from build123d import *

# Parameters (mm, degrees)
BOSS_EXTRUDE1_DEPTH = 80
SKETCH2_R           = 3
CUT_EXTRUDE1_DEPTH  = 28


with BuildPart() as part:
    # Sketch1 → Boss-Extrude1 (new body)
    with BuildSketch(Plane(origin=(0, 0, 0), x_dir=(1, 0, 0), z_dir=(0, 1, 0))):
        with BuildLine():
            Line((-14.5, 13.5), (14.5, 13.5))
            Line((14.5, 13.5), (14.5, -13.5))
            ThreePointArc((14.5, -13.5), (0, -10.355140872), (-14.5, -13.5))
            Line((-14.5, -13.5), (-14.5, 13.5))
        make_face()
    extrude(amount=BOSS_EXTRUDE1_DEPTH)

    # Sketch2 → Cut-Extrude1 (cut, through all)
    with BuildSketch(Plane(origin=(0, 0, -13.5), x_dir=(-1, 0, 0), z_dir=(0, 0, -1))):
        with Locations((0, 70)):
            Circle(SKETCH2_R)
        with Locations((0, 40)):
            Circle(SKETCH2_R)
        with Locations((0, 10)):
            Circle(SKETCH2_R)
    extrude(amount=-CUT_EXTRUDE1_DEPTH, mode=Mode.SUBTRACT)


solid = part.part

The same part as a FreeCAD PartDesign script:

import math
import FreeCAD as App
import Part
import Sketcher
Q = App.Units.Quantity

doc = App.newDocument("Part")
params = doc.addObject("Spreadsheet::Sheet", "Params")
for row, (alias, value) in enumerate([
    ("sketch1_radius", "35 mm"),
    ("sketch1_width", "29 mm"),
    ("sketch1_height", "27 mm"),
    ("pad1_length", "80 mm"),
    ("sketch2_diameter", "6 mm"),
], start=1):
    params.set(f"A{row}", alias)
    params.set(f"B{row}", "=" + value)
    params.setAlias(f"B{row}", alias)

body = doc.addObject("PartDesign::Body", "Body")

sketch1 = body.newObject("Sketcher::SketchObject", "Sketch")
sketch1.AttachmentSupport = (doc.getObject("XZ_Plane"), [""])
sketch1.MapMode = "FlatFace"
sketch1.addGeometry([
    Part.LineSegment(App.Vector(14, -14, 0), App.Vector(-14, -14, 0)),
    Part.LineSegment(App.Vector(-14, -14, 0), App.Vector(-14, 14, 0)),
    Part.ArcOfCircle(Part.Circle(App.Vector(0, 45, 0), App.Vector(0, 0, 1), 35), math.radians(-114), math.radians(-66)),
    Part.LineSegment(App.Vector(14, 14, 0), App.Vector(14, -14, 0)),
], False)
sketch1.addConstraint([
    Sketcher.Constraint("Coincident", 0, 2, 1, 1),
    Sketcher.Constraint("Coincident", 1, 2, 2, 1),
    Sketcher.Constraint("Coincident", 2, 2, 3, 1),
    Sketcher.Constraint("Coincident", 3, 2, 0, 1),
    Sketcher.Constraint("Horizontal", 0),
    Sketcher.Constraint("Vertical", 1),
    Sketcher.Constraint("Vertical", 3),
    Sketcher.Constraint("Symmetric", 0, 2, 2, 2, -1, 1),
    Sketcher.Constraint("PointOnObject", 2, 3, -2),
    Sketcher.Constraint("Radius", 2, Q("35 mm")),
    Sketcher.Constraint("DistanceX", 0, 2, 0, 1, Q("29 mm")),
    Sketcher.Constraint("DistanceY", 1, 1, 1, 2, Q("27 mm")),
])
sketch1.setExpression("Constraints[9]", "Params.sketch1_radius")
sketch1.setExpression("Constraints[10]", "Params.sketch1_width")
sketch1.setExpression("Constraints[11]", "Params.sketch1_height")
pad1 = body.newObject("PartDesign::Pad", "Pad")
pad1.Profile = sketch1
pad1.setExpression("Length", "Params.pad1_length")
pad1.Reversed = True

sketch2 = body.newObject("Sketcher::SketchObject", "Sketch001")
sketch2.AttachmentSupport = (doc.getObject("XY_Plane"), [""])
sketch2.MapMode = "FlatFace"
sketch2.AttachmentOffset = App.Placement(App.Vector(0, 0, -13.5), App.Rotation())
sketch2.addGeometry([
    Part.Circle(App.Vector(0, 70, 0), App.Vector(0, 0, 1), 3),
    Part.Circle(App.Vector(0, 40, 0), App.Vector(0, 0, 1), 3),
    Part.Circle(App.Vector(0, 10, 0), App.Vector(0, 0, 1), 3),
], False)
sketch2.addConstraint([
    Sketcher.Constraint("Equal", 0, 1),
    Sketcher.Constraint("Equal", 1, 2),
    Sketcher.Constraint("PointOnObject", 0, 3, -2),
    Sketcher.Constraint("PointOnObject", 1, 3, -2),
    Sketcher.Constraint("PointOnObject", 2, 3, -2),
    Sketcher.Constraint("Diameter", 0, Q("6 mm")),
    Sketcher.Constraint("DistanceY", -1, 1, 0, 3, Q("70 mm")),
    Sketcher.Constraint("DistanceY", -1, 1, 1, 3, Q("40 mm")),
    Sketcher.Constraint("DistanceY", -1, 1, 2, 3, Q("10 mm")),
])
sketch2.setExpression("Constraints[5]", "Params.sketch2_diameter")
pocket1 = body.newObject("PartDesign::Pocket", "Pocket")
pocket1.Profile = sketch2
pocket1.Type = "ThroughAll"
pocket1.Reversed = True

doc.recompute()
